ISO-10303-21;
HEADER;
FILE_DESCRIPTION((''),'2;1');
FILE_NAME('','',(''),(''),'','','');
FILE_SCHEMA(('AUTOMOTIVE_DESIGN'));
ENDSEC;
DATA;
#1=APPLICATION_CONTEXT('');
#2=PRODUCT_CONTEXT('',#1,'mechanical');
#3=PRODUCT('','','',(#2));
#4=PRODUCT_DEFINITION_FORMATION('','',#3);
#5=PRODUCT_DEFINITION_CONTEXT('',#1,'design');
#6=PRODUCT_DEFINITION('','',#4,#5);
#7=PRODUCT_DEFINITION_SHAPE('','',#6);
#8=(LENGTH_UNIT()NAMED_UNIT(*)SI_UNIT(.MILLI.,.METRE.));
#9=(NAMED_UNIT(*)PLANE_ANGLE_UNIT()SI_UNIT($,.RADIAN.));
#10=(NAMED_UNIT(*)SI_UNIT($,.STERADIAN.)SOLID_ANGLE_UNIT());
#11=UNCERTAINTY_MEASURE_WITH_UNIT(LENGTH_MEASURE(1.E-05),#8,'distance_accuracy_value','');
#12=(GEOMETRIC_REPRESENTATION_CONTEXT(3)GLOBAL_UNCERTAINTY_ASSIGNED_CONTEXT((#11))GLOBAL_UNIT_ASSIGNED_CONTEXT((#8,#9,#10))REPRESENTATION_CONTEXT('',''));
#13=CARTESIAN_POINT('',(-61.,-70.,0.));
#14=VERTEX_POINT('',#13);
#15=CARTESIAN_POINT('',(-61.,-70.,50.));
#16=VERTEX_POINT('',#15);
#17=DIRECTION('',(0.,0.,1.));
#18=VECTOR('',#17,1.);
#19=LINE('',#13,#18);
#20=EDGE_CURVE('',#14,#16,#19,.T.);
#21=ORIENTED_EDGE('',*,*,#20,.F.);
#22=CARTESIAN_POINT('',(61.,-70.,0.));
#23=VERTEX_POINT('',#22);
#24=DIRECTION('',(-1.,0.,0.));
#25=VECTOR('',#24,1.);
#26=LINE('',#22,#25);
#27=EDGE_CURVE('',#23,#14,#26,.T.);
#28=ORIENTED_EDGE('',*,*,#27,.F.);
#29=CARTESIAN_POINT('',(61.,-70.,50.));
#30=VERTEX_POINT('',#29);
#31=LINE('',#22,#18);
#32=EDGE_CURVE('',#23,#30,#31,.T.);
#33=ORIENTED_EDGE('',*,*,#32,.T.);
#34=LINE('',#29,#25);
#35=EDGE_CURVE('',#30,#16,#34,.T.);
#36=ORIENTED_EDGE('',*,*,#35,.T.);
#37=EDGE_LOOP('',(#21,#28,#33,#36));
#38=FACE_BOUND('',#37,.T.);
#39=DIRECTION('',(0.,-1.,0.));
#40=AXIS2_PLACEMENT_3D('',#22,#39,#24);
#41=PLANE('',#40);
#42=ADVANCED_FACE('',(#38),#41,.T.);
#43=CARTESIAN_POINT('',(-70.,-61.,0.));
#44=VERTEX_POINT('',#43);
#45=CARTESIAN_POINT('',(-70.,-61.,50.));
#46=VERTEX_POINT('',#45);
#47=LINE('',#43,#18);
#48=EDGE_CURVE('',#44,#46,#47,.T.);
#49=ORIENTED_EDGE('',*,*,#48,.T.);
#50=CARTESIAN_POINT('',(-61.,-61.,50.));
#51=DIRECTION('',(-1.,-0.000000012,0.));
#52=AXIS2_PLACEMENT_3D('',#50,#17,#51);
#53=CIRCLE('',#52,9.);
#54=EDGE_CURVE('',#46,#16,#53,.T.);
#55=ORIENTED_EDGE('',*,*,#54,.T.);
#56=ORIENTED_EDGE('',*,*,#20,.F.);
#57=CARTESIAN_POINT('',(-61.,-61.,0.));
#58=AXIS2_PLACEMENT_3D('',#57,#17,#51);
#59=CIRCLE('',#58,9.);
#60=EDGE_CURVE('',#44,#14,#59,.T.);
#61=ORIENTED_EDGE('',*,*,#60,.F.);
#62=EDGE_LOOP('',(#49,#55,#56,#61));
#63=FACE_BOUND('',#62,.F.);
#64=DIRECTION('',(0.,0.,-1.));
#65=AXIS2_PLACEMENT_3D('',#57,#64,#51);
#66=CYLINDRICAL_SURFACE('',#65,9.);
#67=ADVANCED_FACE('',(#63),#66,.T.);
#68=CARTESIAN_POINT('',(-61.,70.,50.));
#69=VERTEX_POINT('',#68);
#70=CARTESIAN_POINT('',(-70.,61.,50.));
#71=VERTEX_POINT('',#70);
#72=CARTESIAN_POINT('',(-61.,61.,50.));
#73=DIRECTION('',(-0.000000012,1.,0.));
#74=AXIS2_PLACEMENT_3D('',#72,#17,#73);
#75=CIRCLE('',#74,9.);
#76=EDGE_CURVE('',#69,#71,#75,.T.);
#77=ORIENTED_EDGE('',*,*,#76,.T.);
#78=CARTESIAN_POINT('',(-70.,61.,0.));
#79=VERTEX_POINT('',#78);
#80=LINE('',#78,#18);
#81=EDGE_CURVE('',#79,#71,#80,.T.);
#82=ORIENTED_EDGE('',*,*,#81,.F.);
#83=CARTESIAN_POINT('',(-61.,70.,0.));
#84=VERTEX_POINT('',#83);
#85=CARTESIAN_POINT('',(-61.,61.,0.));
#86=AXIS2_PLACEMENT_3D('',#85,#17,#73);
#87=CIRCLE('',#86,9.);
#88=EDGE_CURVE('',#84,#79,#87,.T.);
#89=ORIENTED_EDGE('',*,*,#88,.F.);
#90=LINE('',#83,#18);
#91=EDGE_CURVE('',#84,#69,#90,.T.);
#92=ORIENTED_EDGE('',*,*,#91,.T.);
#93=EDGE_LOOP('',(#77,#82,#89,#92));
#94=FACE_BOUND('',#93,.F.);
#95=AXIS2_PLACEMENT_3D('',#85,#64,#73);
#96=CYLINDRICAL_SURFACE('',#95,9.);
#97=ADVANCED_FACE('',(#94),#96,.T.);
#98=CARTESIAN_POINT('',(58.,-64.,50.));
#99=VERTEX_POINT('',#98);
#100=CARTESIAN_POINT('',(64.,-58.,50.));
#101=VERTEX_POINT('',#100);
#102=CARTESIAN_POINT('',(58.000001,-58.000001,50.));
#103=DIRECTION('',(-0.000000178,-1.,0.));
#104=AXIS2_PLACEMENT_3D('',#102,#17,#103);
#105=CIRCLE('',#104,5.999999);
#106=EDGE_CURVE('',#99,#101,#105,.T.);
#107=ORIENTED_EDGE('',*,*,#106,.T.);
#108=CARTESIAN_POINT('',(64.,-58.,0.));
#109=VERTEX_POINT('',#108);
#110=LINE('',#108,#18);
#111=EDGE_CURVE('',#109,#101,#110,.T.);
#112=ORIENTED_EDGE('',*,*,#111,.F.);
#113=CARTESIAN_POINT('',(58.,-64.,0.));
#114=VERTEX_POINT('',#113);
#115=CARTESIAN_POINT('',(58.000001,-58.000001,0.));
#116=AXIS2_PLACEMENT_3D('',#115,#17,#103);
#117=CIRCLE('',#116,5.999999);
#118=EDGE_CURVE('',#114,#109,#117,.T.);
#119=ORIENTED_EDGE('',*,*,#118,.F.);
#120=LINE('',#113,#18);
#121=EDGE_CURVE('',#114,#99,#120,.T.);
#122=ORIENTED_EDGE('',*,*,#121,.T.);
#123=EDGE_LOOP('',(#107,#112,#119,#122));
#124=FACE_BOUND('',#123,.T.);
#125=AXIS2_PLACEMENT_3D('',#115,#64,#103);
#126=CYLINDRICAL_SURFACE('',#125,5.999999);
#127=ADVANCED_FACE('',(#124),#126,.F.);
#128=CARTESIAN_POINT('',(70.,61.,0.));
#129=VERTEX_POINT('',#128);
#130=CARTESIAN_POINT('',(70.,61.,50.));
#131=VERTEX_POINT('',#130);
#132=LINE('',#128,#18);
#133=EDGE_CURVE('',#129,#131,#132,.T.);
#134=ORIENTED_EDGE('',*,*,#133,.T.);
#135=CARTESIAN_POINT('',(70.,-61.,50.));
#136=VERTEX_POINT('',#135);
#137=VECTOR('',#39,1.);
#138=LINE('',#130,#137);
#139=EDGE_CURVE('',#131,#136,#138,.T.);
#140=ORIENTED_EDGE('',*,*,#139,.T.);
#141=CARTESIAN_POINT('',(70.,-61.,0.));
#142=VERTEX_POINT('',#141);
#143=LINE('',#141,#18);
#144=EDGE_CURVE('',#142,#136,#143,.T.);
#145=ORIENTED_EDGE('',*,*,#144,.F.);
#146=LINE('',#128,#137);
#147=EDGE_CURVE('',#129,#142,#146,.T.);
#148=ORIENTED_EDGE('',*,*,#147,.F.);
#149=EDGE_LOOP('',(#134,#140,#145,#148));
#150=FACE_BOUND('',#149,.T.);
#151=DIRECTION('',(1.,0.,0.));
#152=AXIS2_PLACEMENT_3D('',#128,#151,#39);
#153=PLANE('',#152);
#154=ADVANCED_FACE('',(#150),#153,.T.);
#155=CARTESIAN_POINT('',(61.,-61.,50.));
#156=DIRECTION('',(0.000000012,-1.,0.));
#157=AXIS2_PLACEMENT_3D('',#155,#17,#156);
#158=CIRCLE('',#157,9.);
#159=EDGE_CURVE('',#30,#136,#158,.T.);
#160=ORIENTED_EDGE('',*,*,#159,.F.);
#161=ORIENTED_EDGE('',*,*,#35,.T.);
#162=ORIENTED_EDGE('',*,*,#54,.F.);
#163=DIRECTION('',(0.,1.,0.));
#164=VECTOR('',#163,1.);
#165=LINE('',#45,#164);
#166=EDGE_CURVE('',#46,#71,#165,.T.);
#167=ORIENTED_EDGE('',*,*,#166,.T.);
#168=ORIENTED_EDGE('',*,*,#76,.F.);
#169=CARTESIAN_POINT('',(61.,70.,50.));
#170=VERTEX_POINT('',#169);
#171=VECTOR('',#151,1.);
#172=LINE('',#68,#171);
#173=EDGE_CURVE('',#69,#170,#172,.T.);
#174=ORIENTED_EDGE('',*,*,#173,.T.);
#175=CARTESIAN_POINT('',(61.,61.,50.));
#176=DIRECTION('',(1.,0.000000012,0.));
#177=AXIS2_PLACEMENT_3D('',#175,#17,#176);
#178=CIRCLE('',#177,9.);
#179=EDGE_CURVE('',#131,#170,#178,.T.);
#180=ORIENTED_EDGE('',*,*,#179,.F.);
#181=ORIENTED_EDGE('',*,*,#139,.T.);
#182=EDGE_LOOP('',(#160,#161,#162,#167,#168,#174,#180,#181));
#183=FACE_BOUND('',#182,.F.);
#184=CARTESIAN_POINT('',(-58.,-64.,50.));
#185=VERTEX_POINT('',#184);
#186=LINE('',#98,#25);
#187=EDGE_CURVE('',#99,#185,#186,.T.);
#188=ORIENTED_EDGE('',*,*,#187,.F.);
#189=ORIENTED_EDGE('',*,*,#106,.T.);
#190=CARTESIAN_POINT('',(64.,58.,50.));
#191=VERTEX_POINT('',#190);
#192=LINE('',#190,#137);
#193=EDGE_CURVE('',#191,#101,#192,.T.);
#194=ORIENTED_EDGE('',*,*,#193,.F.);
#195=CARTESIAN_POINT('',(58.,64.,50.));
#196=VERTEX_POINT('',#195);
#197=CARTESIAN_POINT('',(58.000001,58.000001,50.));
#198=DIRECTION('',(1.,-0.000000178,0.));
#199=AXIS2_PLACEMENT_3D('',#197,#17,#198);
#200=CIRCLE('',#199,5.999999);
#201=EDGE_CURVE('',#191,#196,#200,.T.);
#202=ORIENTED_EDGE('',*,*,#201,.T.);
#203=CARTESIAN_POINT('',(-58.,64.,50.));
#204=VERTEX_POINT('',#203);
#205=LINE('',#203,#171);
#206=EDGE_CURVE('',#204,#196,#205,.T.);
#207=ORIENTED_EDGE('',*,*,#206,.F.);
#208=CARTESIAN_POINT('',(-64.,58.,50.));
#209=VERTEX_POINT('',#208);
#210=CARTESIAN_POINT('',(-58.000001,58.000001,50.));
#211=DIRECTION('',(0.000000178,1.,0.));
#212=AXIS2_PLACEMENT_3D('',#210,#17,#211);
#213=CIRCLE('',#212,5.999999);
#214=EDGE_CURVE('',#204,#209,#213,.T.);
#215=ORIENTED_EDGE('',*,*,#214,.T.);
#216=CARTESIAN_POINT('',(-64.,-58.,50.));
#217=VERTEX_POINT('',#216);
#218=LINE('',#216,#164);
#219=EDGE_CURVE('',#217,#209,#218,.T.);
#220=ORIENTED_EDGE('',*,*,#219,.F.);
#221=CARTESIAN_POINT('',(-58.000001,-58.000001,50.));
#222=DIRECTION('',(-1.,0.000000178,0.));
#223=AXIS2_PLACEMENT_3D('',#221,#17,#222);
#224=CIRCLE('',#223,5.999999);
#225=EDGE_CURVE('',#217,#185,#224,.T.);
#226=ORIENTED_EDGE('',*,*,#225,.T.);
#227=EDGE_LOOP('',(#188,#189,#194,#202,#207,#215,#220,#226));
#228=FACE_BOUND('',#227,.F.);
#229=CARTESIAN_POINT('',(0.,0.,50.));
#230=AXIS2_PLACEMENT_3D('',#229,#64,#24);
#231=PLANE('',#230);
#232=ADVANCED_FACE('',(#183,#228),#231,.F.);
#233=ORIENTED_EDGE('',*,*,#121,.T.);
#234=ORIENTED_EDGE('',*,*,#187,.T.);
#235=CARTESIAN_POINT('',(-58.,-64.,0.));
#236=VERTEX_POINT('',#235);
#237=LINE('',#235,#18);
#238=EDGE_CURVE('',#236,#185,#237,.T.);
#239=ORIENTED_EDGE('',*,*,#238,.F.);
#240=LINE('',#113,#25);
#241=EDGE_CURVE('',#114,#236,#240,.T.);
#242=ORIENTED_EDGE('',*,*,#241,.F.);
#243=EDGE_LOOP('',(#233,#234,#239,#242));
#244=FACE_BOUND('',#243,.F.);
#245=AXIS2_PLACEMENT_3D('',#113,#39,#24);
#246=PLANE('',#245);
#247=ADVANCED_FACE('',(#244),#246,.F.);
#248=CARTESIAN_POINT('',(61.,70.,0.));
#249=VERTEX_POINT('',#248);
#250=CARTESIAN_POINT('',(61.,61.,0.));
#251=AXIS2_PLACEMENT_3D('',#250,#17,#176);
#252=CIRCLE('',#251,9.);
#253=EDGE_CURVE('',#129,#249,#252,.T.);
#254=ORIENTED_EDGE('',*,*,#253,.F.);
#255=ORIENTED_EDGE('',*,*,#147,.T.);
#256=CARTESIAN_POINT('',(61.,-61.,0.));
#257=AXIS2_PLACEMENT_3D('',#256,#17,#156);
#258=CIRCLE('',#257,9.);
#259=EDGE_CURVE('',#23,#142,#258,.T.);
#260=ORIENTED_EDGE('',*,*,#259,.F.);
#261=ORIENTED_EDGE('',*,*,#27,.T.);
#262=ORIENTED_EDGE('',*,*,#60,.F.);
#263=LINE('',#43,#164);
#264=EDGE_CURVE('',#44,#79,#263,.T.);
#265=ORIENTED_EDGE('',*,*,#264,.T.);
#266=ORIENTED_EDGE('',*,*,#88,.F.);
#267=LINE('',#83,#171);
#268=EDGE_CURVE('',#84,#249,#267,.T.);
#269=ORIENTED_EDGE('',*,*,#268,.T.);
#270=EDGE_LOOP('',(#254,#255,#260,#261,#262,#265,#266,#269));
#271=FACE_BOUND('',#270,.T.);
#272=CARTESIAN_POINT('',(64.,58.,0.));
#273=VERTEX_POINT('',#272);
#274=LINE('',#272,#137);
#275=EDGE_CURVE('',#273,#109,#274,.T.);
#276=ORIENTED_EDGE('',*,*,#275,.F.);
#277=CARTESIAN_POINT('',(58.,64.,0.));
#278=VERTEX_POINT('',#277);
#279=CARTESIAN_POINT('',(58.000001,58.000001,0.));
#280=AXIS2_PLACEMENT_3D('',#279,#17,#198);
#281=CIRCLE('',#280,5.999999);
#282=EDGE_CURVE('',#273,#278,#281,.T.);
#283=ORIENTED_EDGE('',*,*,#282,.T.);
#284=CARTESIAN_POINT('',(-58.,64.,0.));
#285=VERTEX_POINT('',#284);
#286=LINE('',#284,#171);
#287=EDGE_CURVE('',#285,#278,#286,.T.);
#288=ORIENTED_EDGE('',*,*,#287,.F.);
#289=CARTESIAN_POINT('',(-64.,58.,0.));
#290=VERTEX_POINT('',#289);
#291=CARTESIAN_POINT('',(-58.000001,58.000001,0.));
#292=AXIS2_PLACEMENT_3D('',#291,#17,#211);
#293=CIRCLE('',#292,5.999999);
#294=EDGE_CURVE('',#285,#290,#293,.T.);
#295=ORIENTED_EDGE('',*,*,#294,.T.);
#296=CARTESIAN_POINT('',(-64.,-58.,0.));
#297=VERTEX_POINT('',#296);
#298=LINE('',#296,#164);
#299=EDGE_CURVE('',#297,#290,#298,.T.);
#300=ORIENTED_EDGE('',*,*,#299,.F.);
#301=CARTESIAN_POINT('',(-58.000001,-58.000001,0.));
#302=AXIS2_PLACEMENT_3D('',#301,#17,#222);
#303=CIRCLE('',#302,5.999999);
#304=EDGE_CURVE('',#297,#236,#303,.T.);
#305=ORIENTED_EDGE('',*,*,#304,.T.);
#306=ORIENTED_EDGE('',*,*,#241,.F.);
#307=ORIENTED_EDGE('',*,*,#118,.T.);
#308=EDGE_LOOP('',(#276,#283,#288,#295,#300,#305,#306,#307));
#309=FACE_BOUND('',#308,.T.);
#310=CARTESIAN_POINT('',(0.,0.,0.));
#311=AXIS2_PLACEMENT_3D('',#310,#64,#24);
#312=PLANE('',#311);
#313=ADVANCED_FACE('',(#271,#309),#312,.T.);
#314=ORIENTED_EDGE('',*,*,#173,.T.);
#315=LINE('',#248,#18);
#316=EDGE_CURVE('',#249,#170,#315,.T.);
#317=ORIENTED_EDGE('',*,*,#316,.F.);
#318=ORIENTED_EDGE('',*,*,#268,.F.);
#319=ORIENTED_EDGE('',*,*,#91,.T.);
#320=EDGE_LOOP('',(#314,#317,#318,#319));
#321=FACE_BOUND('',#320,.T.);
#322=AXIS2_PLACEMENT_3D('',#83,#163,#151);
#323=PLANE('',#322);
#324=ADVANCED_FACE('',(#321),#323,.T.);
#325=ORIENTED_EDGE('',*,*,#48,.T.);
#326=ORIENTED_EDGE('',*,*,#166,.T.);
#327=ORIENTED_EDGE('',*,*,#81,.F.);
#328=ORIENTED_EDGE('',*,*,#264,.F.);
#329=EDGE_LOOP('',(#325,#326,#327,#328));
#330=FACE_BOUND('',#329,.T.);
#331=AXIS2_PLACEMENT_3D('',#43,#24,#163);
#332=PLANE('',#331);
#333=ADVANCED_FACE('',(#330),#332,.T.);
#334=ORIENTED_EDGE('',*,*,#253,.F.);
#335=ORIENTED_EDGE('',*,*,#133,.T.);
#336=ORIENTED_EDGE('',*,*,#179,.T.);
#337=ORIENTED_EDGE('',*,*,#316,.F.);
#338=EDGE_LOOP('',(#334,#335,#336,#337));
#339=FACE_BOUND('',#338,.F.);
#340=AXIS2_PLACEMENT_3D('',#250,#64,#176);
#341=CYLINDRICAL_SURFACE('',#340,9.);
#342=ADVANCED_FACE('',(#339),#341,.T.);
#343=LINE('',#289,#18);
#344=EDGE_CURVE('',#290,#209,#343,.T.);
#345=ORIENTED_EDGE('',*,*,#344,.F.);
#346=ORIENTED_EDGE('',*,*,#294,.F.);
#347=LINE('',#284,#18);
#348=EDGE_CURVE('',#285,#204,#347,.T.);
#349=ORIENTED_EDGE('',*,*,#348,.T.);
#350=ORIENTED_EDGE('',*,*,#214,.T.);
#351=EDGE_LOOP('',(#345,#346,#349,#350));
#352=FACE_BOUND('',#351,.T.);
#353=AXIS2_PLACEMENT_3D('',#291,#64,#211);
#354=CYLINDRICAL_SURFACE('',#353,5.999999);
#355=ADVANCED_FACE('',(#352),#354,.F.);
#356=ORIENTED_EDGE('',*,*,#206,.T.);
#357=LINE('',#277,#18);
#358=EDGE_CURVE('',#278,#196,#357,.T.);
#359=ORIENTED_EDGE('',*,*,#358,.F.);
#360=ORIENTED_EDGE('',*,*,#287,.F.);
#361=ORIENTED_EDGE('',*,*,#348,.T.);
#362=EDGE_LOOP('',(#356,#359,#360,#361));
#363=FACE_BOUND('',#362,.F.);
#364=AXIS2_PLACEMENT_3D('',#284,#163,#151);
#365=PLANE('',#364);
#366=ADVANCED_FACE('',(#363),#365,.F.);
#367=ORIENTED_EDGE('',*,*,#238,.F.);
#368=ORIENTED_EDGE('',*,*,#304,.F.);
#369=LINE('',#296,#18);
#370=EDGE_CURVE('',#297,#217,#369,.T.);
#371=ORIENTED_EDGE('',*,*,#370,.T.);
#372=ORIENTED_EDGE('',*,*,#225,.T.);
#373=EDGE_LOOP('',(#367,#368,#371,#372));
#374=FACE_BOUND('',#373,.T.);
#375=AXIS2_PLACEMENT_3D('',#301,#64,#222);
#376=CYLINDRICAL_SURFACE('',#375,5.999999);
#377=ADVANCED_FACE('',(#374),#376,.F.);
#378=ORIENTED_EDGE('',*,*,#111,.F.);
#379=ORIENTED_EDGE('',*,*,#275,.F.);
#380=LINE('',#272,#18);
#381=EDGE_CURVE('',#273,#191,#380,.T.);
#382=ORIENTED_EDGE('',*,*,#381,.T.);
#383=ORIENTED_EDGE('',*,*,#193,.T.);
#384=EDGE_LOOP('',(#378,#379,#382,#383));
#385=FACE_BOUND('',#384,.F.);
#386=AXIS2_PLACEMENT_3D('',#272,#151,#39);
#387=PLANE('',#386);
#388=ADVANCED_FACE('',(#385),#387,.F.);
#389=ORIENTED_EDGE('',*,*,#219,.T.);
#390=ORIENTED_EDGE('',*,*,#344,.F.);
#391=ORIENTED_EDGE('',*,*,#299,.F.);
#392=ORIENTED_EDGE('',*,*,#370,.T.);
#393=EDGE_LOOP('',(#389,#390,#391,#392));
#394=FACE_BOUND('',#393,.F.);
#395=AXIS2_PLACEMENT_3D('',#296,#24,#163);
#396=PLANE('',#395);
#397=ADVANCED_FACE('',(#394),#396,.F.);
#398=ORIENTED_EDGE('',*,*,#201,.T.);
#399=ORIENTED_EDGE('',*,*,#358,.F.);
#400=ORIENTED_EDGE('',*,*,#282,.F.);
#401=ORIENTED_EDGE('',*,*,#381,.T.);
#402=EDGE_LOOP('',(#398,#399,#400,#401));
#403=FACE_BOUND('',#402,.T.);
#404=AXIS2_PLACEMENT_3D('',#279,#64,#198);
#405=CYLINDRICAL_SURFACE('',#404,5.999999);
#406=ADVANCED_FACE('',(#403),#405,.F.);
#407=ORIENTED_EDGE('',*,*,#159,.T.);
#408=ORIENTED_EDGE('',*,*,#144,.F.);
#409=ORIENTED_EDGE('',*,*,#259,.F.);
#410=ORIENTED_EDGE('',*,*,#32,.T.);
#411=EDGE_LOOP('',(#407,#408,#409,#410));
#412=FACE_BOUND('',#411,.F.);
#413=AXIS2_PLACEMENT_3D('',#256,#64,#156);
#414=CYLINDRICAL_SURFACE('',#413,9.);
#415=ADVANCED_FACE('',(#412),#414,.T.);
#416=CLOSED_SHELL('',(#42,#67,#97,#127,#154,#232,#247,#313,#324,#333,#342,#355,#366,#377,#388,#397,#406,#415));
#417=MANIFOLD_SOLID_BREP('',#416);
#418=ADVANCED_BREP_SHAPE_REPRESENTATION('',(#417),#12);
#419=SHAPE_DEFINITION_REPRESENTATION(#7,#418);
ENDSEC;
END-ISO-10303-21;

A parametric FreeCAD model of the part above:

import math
import FreeCAD as App
import Part
import Sketcher

doc = App.newDocument("Part")
body = doc.addObject("PartDesign::Body", "Body")

# Sketch on XY plane
sketch1 = doc.addObject("Sketcher::SketchObject", "Sketch")
body.addObject(sketch1)
sketch1.AttachmentSupport = (doc.XY_Plane, [""])
sketch1.MapMode = "FlatFace"
sketch1.addGeometry([
    Part.LineSegment(App.Vector(61, 70, 0), App.Vector(-61, 70, 0)),  # 0
    Part.ArcOfCircle(Part.Circle(App.Vector(-61, 61, 0), App.Vector(0, 0, 1), 9), math.radians(90), math.radians(180)),  # 1
    Part.LineSegment(App.Vector(-70, 61, 0), App.Vector(-70, -61, 0)),  # 2
    Part.ArcOfCircle(Part.Circle(App.Vector(-61, -61, 0), App.Vector(0, 0, 1), 9), math.radians(-180), math.radians(-90)),  # 3
    Part.LineSegment(App.Vector(-61, -70, 0), App.Vector(61, -70, 0)),  # 4
    Part.ArcOfCircle(Part.Circle(App.Vector(61, -61, 0), App.Vector(0, 0, 1), 9), math.radians(-90), math.radians(0)),  # 5
    Part.LineSegment(App.Vector(70, -61, 0), App.Vector(70, 61, 0)),  # 6
    Part.ArcOfCircle(Part.Circle(App.Vector(61, 61, 0), App.Vector(0, 0, 1), 9), math.radians(0), math.radians(90)),  # 7
    Part.LineSegment(App.Vector(-58, 64, 0), App.Vector(58, 64, 0)),  # 8
    Part.ArcOfCircle(Part.Circle(App.Vector(58, 58, 0), App.Vector(0, 0, 1), 6), math.radians(0), math.radians(90)),  # 9
    Part.LineSegment(App.Vector(64, 58, 0), App.Vector(64, -58, 0)),  # 10
    Part.ArcOfCircle(Part.Circle(App.Vector(58, -58, 0), App.Vector(0, 0, 1), 6), math.radians(-90), math.radians(0)),  # 11
    Part.LineSegment(App.Vector(58, -64, 0), App.Vector(-58, -64, 0)),  # 12
    Part.ArcOfCircle(Part.Circle(App.Vector(-58, -58, 0), App.Vector(0, 0, 1), 6), math.radians(180), math.radians(270)),  # 13
    Part.LineSegment(App.Vector(-64, -58, 0), App.Vector(-64, 58, 0)),  # 14
    Part.ArcOfCircle(Part.Circle(App.Vector(-58, 58, 0), App.Vector(0, 0, 1), 6), math.radians(90), math.radians(180)),  # 15
], False)
sketch1.addConstraint([
    Sketcher.Constraint("Tangent", 0, 2, 1, 1),
    Sketcher.Constraint("Tangent", 1, 2, 2, 1),
    Sketcher.Constraint("Tangent", 2, 2, 3, 1),
    Sketcher.Constraint("Tangent", 3, 2, 4, 1),
    Sketcher.Constraint("Tangent", 4, 2, 5, 1),
    Sketcher.Constraint("Tangent", 5, 2, 6, 1),
    Sketcher.Constraint("Tangent", 6, 2, 7, 1),
    Sketcher.Constraint("Tangent", 7, 2, 0, 1),
    Sketcher.Constraint("Tangent", 8, 2, 9, 2),
    Sketcher.Constraint("Tangent", 9, 1, 10, 1),
    Sketcher.Constraint("Tangent", 10, 2, 11, 2),
    Sketcher.Constraint("Tangent", 11, 1, 12, 1),
    Sketcher.Constraint("Tangent", 12, 2, 13, 2),
    Sketcher.Constraint("Tangent", 13, 1, 14, 1),
    Sketcher.Constraint("Tangent", 14, 2, 15, 2),
    Sketcher.Constraint("Tangent", 15, 1, 8, 1),
    Sketcher.Constraint("Horizontal", 0),
    Sketcher.Constraint("Vertical", 2),
    Sketcher.Constraint("Horizontal", 4),
    Sketcher.Constraint("Vertical", 6),
    Sketcher.Constraint("Horizontal", 8),
    Sketcher.Constraint("Vertical", 10),
    Sketcher.Constraint("Horizontal", 12),
    Sketcher.Constraint("Vertical", 14),
    Sketcher.Constraint("Equal", 1, 3),
    Sketcher.Constraint("Equal", 3, 5),
    Sketcher.Constraint("Equal", 5, 7),
    Sketcher.Constraint("Equal", 9, 11),
    Sketcher.Constraint("Equal", 11, 13),
    Sketcher.Constraint("Equal", 13, 15),
    Sketcher.Constraint("Symmetric", 1, 3, 5, 3, -1, 1),
    Sketcher.Constraint("Symmetric", 9, 3, 13, 3, -1, 1),
    Sketcher.Constraint("Equal", 4, 2),
    Sketcher.Constraint("Equal", 12, 10),
    Sketcher.Constraint("Radius", 1, 9.0),
    Sketcher.Constraint("Radius", 9, 5.999999),
    Sketcher.Constraint("DistanceX", 0, 2, 0, 1, 122.0),
    Sketcher.Constraint("DistanceX", 8, 1, 8, 2, 116.0),
])
pad1 = doc.addObject("PartDesign::Pad", "Pad")
body.addObject(pad1)
pad1.Profile = sketch1
pad1.Length = 50

doc.recompute()
